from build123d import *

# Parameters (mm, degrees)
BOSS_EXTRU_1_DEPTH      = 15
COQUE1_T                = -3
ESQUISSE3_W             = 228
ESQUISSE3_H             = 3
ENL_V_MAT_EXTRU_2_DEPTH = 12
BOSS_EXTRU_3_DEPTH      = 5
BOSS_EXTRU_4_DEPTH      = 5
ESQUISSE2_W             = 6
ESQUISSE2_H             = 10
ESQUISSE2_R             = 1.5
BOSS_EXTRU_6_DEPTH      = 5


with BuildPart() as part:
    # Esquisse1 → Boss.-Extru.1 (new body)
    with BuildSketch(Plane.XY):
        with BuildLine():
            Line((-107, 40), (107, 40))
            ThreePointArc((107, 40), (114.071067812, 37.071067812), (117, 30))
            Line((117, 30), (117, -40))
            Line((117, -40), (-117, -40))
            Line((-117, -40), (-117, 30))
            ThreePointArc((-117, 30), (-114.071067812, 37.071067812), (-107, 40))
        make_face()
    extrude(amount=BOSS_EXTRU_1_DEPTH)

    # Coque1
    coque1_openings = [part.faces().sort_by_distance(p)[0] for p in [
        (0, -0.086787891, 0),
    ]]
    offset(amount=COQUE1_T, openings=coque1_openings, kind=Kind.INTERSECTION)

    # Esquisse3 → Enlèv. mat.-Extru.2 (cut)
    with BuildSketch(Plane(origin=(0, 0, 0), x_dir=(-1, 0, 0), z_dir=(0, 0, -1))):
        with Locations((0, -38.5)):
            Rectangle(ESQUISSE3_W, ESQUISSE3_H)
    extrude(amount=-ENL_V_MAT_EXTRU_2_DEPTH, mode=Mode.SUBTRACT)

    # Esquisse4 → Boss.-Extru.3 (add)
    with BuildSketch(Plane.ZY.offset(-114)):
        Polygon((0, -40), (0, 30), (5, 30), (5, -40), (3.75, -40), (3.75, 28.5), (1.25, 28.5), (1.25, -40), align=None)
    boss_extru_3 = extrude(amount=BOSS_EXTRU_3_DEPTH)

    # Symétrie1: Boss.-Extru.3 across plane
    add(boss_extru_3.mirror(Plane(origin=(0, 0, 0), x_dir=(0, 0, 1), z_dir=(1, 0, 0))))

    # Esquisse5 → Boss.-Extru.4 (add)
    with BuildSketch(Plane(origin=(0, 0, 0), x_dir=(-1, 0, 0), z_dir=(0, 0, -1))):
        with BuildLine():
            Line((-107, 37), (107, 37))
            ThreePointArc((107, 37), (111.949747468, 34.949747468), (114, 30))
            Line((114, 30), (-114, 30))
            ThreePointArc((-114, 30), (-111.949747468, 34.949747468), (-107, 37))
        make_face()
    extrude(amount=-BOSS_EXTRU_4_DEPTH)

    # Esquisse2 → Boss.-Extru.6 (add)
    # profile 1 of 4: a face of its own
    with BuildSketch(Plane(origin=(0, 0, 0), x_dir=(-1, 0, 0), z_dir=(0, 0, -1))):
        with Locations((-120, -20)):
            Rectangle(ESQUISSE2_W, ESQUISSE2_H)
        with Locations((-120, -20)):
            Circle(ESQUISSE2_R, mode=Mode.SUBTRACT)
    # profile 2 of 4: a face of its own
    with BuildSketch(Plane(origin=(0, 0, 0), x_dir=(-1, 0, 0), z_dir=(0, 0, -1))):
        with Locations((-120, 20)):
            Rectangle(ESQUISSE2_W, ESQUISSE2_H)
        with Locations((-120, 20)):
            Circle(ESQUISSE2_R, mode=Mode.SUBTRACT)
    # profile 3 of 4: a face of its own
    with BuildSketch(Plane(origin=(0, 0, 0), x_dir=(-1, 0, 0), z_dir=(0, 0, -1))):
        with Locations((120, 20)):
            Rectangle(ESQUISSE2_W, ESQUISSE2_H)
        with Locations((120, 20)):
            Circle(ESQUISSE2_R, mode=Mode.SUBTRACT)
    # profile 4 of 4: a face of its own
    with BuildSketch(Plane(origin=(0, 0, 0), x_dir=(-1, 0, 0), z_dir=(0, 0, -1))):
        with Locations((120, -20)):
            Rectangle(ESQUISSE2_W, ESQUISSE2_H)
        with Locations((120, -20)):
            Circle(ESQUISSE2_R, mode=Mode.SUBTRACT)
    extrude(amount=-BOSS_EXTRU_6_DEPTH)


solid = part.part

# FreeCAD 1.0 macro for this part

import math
import FreeCAD as App
import Part
import Sketcher

V = App.Vector


def faces_at(feature, points):
    """Names of the faces that lie closest to the given points."""
    faces = feature.Shape.Faces
    near = lambda p: min(range(len(faces)), key=lambda i: faces[i].distToShape(Part.Vertex(*p))[0])
    return sorted({f"Face{near(p) + 1}" for p in points})


def add_polygon(sketch, points):
    """Adds a closed chain of lines whose ends are joined by coincident constraints."""
    first, n = sketch.GeometryCount, len(points)
    for a, b in zip(points, points[1:] + points[:1]):
        sketch.addGeometry(Part.LineSegment(App.Vector(*a, 0), App.Vector(*b, 0)), False)
    for i in range(n):
        sketch.addConstraint(Sketcher.Constraint("Coincident", first + i, 2, first + (i + 1) % n, 1))

doc = App.newDocument("Part")
body = doc.addObject("PartDesign::Body", "Body")

# Sketch on XY plane
sketch1 = body.newObject("Sketcher::SketchObject", "Sketch")
sketch1.AttachmentSupport = (doc.getObject("XY_Plane"), [""])
sketch1.MapMode = "FlatFace"
sketch1.addGeometry([
    Part.LineSegment(V(107, 40, 0), V(-107, 40, 0)),  # 0
    Part.ArcOfCircle(Part.Circle(V(-107, 30, 0), V(0, 0, 1), 10), math.radians(90), math.radians(180)),  # 1
    Part.LineSegment(V(-117, 30, 0), V(-117, -40, 0)),  # 2
    Part.LineSegment(V(-117, -40, 0), V(117, -40, 0)),  # 3
    Part.LineSegment(V(117, -40, 0), V(117, 30, 0)),  # 4
    Part.ArcOfCircle(Part.Circle(V(107, 30, 0), V(0, 0, 1), 10), math.radians(0), math.radians(90)),  # 5
], False)
sketch1.addConstraint([
    Sketcher.Constraint("Tangent", 0, 2, 1, 1),
    Sketcher.Constraint("Tangent", 1, 2, 2, 1),
    Sketcher.Constraint("Coincident", 2, 2, 3, 1),
    Sketcher.Constraint("Coincident", 3, 2, 4, 1),
    Sketcher.Constraint("Tangent", 4, 2, 5, 1),
    Sketcher.Constraint("Tangent", 5, 2, 0, 1),
    Sketcher.Constraint("Horizontal", 0),
    Sketcher.Constraint("Vertical", 2),
    Sketcher.Constraint("Horizontal", 3),
    Sketcher.Constraint("Vertical", 4),
    Sketcher.Constraint("Equal", 1, 5),
    Sketcher.Constraint("Radius", 1, 10.0),
    Sketcher.Constraint("DistanceX", 0, 2, 0, 1, 214.0),
    Sketcher.Constraint("DistanceY", 2, 2, 2, 1, 70.0),
    Sketcher.Constraint("DistanceX", 1, 3, -1, 1, 107.0),
    Sketcher.Constraint("DistanceY", -1, 1, 1, 3, 30.0),
])
pad1 = body.newObject("PartDesign::Pad", "Pad")
pad1.Profile = sketch1
pad1.Length = 15
doc.recompute()

thickness = body.newObject("PartDesign::Thickness", "Thickness")
thickness.Base = (pad1, faces_at(pad1, [(0, 0, 0)]))
thickness.Value = 3
thickness.Reversed = True
thickness.Join = "Intersection"

# Sketch on XY plane
sketch2 = body.newObject("Sketcher::SketchObject", "Sketch001")
sketch2.AttachmentSupport = (doc.getObject("XY_Plane"), [""])
sketch2.MapMode = "FlatFace"
add_polygon(sketch2, [(114, -37), (114, -40), (-114, -40), (-114, -37)])  # lines 0-3
sketch2.addConstraint([
    Sketcher.Constraint("Vertical", 0),
    Sketcher.Constraint("Horizontal", 1),
    Sketcher.Constraint("Vertical", 2),
    Sketcher.Constraint("Horizontal", 3),
    Sketcher.Constraint("DistanceX", 1, 2, 1, 1, 228.0),
    Sketcher.Constraint("DistanceY", 0, 2, 0, 1, 3.0),
    Sketcher.Constraint("DistanceX", -1, 1, 0, 2, 114.0),
    Sketcher.Constraint("DistanceY", 0, 2, -1, 1, 40.0),
])
pocket1 = body.newObject("PartDesign::Pocket", "Pocket")
pocket1.Profile = sketch2
pocket1.Length = 12
pocket1.Reversed = True

# Sketch on YZ plane
sketch3 = body.newObject("Sketcher::SketchObject", "Sketch002")
sketch3.AttachmentSupport = (doc.getObject("YZ_Plane"), [""])
sketch3.MapMode = "FlatFace"
sketch3.AttachmentOffset = App.Placement(V(0, 0, 114), App.Rotation())
add_polygon(sketch3, [(30, 0), (-40, 0), (-40, 1.2), (28.5, 1.2), (28.5, 3.8), (-40, 3.8), (-40, 5), (30, 5)])  # lines 0-7
sketch3.addConstraint([
    Sketcher.Constraint("Horizontal", 0),
    Sketcher.Constraint("Vertical", 1),
    Sketcher.Constraint("Horizontal", 2),
    Sketcher.Constraint("Vertical", 3),
    Sketcher.Constraint("Horizontal", 4),
    Sketcher.Constraint("Vertical", 5),
    Sketcher.Constraint("Horizontal", 6),
    Sketcher.Constraint("Vertical", 7),
    Sketcher.Constraint("PointOnObject", 0, 2, -1),
    Sketcher.Constraint("Vertical", 1, 2, 4, 2),
    Sketcher.Constraint("Equal", 1, 5),
    Sketcher.Constraint("DistanceX", 0, 2, 0, 1, 70.0),
    Sketcher.Constraint("DistanceY", 7, 2, 7, 1, 5.0),
    Sketcher.Constraint("DistanceX", 2, 1, 2, 2, 68.5),
    Sketcher.Constraint("DistanceY", 3, 1, 3, 2, 2.5),
    Sketcher.Constraint("DistanceX", 0, 2, -1, 1, 40.0),
])
pad2 = body.newObject("PartDesign::Pad", "Pad001")
pad2.Profile = sketch3
pad2.Length = 5
pad2.Reversed = True
doc.recompute()

mirrored = body.newObject("PartDesign::Mirrored", "Mirrored")
mirrored.Originals = [pad2]
mirrored.MirrorPlane = (doc.getObject("YZ_Plane"), [""])
body.Tip = mirrored

# Sketch on XY plane
sketch4 = body.newObject("Sketcher::SketchObject", "Sketch003")
sketch4.AttachmentSupport = (doc.getObject("XY_Plane"), [""])
sketch4.MapMode = "FlatFace"
sketch4.addGeometry([
    Part.LineSegment(V(-107, 37, 0), V(107, 37, 0)),
    Part.ArcOfCircle(Part.Circle(V(107, 30, 0), V(0, 0, 1), 7), math.radians(0), math.radians(90)),
    Part.LineSegment(V(114, 30, 0), V(-114, 30, 0)),
    Part.ArcOfCircle(Part.Circle(V(-107, 30, 0), V(0, 0, 1), 7), math.radians(90), math.radians(180)),
], False)
sketch4.addConstraint([
    Sketcher.Constraint("Tangent", 0, 2, 1, 2),
    Sketcher.Constraint("Coincident", 1, 1, 2, 1),
    Sketcher.Constraint("Coincident", 2, 2, 3, 2),
    Sketcher.Constraint("Tangent", 3, 1, 0, 1),
    Sketcher.Constraint("Horizontal", 0),
    Sketcher.Constraint("Horizontal", 2),
    Sketcher.Constraint("Equal", 1, 3),
    Sketcher.Constraint("Horizontal", 3, 3, 1, 1),
    Sketcher.Constraint("Radius", 1, 7.0),
    Sketcher.Constraint("DistanceX", 0, 1, 0, 2, 214.0),
    Sketcher.Constraint("DistanceX", -1, 1, 1, 3, 107.0),
    Sketcher.Constraint("DistanceY", -1, 1, 1, 3, 30.0),
])
pad3 = body.newObject("PartDesign::Pad", "Pad002")
pad3.Profile = sketch4
pad3.Length = 5

# Sketch on XY plane
sketch5 = body.newObject("Sketcher::SketchObject", "Sketch004")
sketch5.AttachmentSupport = (doc.getObject("XY_Plane"), [""])
sketch5.MapMode = "FlatFace"
add_polygon(sketch5, [(123, -15), (123, -25), (117, -25), (117, -15)])  # lines 0-3
sketch5.addGeometry(Part.Circle(V(120, -20, 0), V(0, 0, 1), 1.5), False)  # 4
add_polygon(sketch5, [(123, 25), (123, 15), (117, 15), (117, 25)])  # lines 5-8
sketch5.addGeometry(Part.Circle(V(120, 20, 0), V(0, 0, 1), 1.5), False)  # 9
add_polygon(sketch5, [(-117, 25), (-117, 15), (-123, 15), (-123, 25)])  # lines 10-13
sketch5.addGeometry(Part.Circle(V(-120, 20, 0), V(0, 0, 1), 1.5), False)  # 14
add_polygon(sketch5, [(-117, -15), (-117, -25), (-123, -25), (-123, -15)])  # lines 15-18
sketch5.addGeometry(Part.Circle(V(-120, -20, 0), V(0, 0, 1), 1.5), False)  # 19
sketch5.addConstraint([
    Sketcher.Constraint("Vertical", 0),
    Sketcher.Constraint("Horizontal", 1),
    Sketcher.Constraint("Vertical", 2),
    Sketcher.Constraint("Horizontal", 3),
    Sketcher.Constraint("Vertical", 5),
    Sketcher.Constraint("Horizontal", 6),
    Sketcher.Constraint("Vertical", 7),
    Sketcher.Constraint("Horizontal", 8),
    Sketcher.Constraint("Vertical", 10),
    Sketcher.Constraint("Horizontal", 11),
    Sketcher.Constraint("Vertical", 12),
    Sketcher.Constraint("Horizontal", 13),
    Sketcher.Constraint("Vertical", 15),
    Sketcher.Constraint("Horizontal", 16),
    Sketcher.Constraint("Vertical", 17),
    Sketcher.Constraint("Horizontal", 18),
    Sketcher.Constraint("Equal", 4, 9),
    Sketcher.Constraint("Equal", 9, 14),
    Sketcher.Constraint("Equal", 14, 19),
    Sketcher.Constraint("Symmetric", 4, 3, 14, 3, -1, 1),
    Sketcher.Constraint("Symmetric", 9, 3, 19, 3, -1, 1),
    Sketcher.Constraint("Symmetric", 2, 2, 10, 2, -1, 1),
    Sketcher.Constraint("Symmetric", 0, 2, 12, 2, -1, 1),
    Sketcher.Constraint("Symmetric", 7, 2, 15, 2, -1, 1),
    Sketcher.Constraint("Symmetric", 5, 2, 17, 2, -1, 1),
    Sketcher.Constraint("Symmetric", 9, 3, 14, 3, -2),
    Sketcher.Constraint("Symmetric", 6, 2, 10, 2, -2),
    Sketcher.Constraint("Symmetric", 8, 2, 12, 2, -2),
    Sketcher.Constraint("Diameter", 4, 3.0),
    Sketcher.Constraint("DistanceX", 1, 2, 1, 1, 6.0),
    Sketcher.Constraint("DistanceY", 0, 2, 0, 1, 10.0),
    Sketcher.Constraint("DistanceX", -1, 1, 4, 3, 120.0),
    Sketcher.Constraint("DistanceY", 4, 3, -1, 1, 20.0),
    Sketcher.Constraint("DistanceX", -1, 1, 0, 2, 123.0),
    Sketcher.Constraint("DistanceY", 0, 2, -1, 1, 25.0),
])
pad4 = body.newObject("PartDesign::Pad", "Pad003")
pad4.Profile = sketch5
pad4.Length = 5

doc.recompute()
